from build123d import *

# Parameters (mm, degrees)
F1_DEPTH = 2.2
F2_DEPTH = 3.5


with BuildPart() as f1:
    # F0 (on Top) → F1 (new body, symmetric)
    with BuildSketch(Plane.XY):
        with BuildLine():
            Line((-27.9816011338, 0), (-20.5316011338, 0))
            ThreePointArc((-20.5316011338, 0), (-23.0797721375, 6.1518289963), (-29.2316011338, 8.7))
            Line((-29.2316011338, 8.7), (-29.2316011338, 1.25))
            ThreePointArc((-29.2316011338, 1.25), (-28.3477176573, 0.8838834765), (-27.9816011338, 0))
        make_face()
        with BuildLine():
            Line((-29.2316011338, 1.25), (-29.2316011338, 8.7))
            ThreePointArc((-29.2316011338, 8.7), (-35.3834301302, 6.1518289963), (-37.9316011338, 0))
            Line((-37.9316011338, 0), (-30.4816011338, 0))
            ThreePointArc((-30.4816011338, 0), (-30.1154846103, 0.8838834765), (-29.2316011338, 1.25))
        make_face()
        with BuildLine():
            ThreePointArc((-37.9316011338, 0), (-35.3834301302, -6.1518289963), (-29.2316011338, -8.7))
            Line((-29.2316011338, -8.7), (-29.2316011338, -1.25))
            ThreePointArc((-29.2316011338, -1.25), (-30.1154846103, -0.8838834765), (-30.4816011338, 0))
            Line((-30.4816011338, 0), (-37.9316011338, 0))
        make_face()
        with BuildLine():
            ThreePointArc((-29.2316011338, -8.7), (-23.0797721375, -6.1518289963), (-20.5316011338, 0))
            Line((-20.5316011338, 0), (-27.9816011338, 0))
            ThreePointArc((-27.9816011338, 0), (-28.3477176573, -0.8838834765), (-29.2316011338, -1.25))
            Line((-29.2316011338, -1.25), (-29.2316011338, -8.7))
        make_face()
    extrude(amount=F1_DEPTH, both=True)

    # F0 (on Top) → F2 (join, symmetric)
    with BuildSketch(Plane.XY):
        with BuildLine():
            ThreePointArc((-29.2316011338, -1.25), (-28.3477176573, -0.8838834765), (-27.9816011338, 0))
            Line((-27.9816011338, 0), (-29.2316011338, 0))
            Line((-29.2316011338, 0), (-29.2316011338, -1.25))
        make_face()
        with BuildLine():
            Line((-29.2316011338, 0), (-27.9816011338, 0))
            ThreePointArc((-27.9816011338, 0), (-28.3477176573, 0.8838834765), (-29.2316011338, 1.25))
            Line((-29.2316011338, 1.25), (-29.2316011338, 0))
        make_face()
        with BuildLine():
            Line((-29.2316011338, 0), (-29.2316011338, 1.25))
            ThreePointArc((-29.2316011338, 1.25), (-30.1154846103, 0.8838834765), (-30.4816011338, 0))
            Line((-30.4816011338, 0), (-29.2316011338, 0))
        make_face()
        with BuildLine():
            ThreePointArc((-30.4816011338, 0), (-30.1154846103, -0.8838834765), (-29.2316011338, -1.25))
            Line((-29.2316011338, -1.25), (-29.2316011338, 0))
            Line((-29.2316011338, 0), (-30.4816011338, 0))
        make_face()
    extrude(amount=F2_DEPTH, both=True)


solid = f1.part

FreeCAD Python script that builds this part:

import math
import FreeCAD as App
import Part
import Sketcher

V = App.Vector

doc = App.newDocument("Part")
body = doc.addObject("PartDesign::Body", "Body")

# Sketch on XY plane
sketch1 = doc.addObject("Sketcher::SketchObject", "Sketch")
body.addObject(sketch1)
sketch1.AttachmentSupport = (doc.XY_Plane, [""])
sketch1.MapMode = "FlatFace"
sketch1.addGeometry(Part.ArcOfCircle(Part.Circle(V(-29.231601, 0, 0), V(0, 0, 1), 8.7), math.radians(0), math.radians(90)), False)
sketch1.addGeometry(Part.ArcOfCircle(Part.Circle(V(-29.231601, 0, 0), V(0, 0, 1), 8.7), math.radians(90), math.radians(180)), False)
sketch1.addGeometry(Part.ArcOfCircle(Part.Circle(V(-29.231601, 0, 0), V(0, 0, 1), 8.7), math.radians(180), math.radians(270)), False)
sketch1.addGeometry(Part.ArcOfCircle(Part.Circle(V(-29.231601, 0, 0), V(0, 0, 1), 8.7), math.radians(-90), math.radians(0)), False)
sketch1.addGeometry(Part.ArcOfCircle(Part.Circle(V(-29.231601, 0, 0), V(0, 0, 1), 1.25), math.radians(180), math.radians(270)), False)
sketch1.addGeometry(Part.ArcOfCircle(Part.Circle(V(-29.231601, 0, 0), V(0, 0, 1), 1.25), math.radians(90), math.radians(180)), False)
sketch1.addGeometry(Part.ArcOfCircle(Part.Circle(V(-29.231601, 0, 0), V(0, 0, 1), 1.25), math.radians(0), math.radians(90)), False)
sketch1.addGeometry(Part.ArcOfCircle(Part.Circle(V(-29.231601, 0, 0), V(0, 0, 1), 1.25), math.radians(-90), math.radians(0)), False)
sketch1.addConstraint(Sketcher.Constraint("Tangent", 0, 2, 1, 1))
sketch1.addConstraint(Sketcher.Constraint("Tangent", 1, 2, 2, 1))
sketch1.addConstraint(Sketcher.Constraint("Tangent", 2, 2, 3, 1))
sketch1.addConstraint(Sketcher.Constraint("Tangent", 3, 2, 0, 1))
sketch1.addConstraint(Sketcher.Constraint("Tangent", 4, 1, 5, 2))
sketch1.addConstraint(Sketcher.Constraint("Tangent", 5, 1, 6, 2))
sketch1.addConstraint(Sketcher.Constraint("Tangent", 6, 1, 7, 2))
sketch1.addConstraint(Sketcher.Constraint("Tangent", 7, 1, 4, 2))
sketch1.addConstraint(Sketcher.Constraint("Coincident", 4, 3, 0, 3))
sketch1.addConstraint(Sketcher.Constraint("Equal", 0, 1))
sketch1.addConstraint(Sketcher.Constraint("Equal", 4, 5))
sketch1.addConstraint(Sketcher.Constraint("Symmetric", 0, 2, 2, 2, -1))
sketch1.addConstraint(Sketcher.Constraint("PointOnObject", 1, 2, -1))
sketch1.addConstraint(Sketcher.Constraint("PointOnObject", 3, 2, -1))
sketch1.addConstraint(Sketcher.Constraint("PointOnObject", 4, 1, -1))
sketch1.addConstraint(Sketcher.Constraint("PointOnObject", 6, 1, -1))
sketch1.addConstraint(Sketcher.Constraint("Vertical", 7, 3, 0, 2))
sketch1.addConstraint(Sketcher.Constraint("Vertical", 2, 2, 5, 1))
sketch1.addConstraint(Sketcher.Constraint("Vertical", 5, 1, 7, 1))
sketch1.addConstraint(Sketcher.Constraint("Radius", 0, 8.7))
sketch1.addConstraint(Sketcher.Constraint("Radius", 4, 1.25))
sketch1.addConstraint(Sketcher.Constraint("DistanceX", 0, 3, -1, 1, 29.231601))
pad1 = doc.addObject("PartDesign::Pad", "Pad")
body.addObject(pad1)
pad1.Profile = sketch1
pad1.Length = 4.4
pad1.Midplane = True

# Sketch on XY plane
sketch2 = doc.addObject("Sketcher::SketchObject", "Sketch001")
body.addObject(sketch2)
sketch2.AttachmentSupport = (doc.XY_Plane, [""])
sketch2.MapMode = "FlatFace"
sketch2.addGeometry(Part.ArcOfCircle(Part.Circle(V(-29.231601, 0, 0), V(0, 0, 1), 1.25), math.radians(-90), math.radians(0)), False)
sketch2.addGeometry(Part.ArcOfCircle(Part.Circle(V(-29.231601, 0, 0), V(0, 0, 1), 1.25), math.radians(0), math.radians(90)), False)
sketch2.addGeometry(Part.ArcOfCircle(Part.Circle(V(-29.231601, 0, 0), V(0, 0, 1), 1.25), math.radians(90), math.radians(180)), False)
sketch2.addGeometry(Part.ArcOfCircle(Part.Circle(V(-29.231601, 0, 0), V(0, 0, 1), 1.25), math.radians(180), math.radians(270)), False)
sketch2.addConstraint(Sketcher.Constraint("Tangent", 0, 2, 1, 1))
sketch2.addConstraint(Sketcher.Constraint("Tangent", 1, 2, 2, 1))
sketch2.addConstraint(Sketcher.Constraint("Tangent", 2, 2, 3, 1))
sketch2.addConstraint(Sketcher.Constraint("Tangent", 3, 2, 0, 1))
sketch2.addConstraint(Sketcher.Constraint("Equal", 0, 1))
sketch2.addConstraint(Sketcher.Constraint("Symmetric", 1, 2, 3, 2, -1))
sketch2.addConstraint(Sketcher.Constraint("PointOnObject", 0, 2, -1))
sketch2.addConstraint(Sketcher.Constraint("PointOnObject", 2, 2, -1))
sketch2.addConstraint(Sketcher.Constraint("Vertical", 3, 3, 1, 2))
sketch2.addConstraint(Sketcher.Constraint("Radius", 0, 1.25))
sketch2.addConstraint(Sketcher.Constraint("DistanceX", 0, 3, -1, 1, 29.231601))
pad2 = doc.addObject("PartDesign::Pad", "Pad001")
body.addObject(pad2)
pad2.Profile = sketch2
pad2.Length = 7
pad2.Midplane = True

doc.recompute()
